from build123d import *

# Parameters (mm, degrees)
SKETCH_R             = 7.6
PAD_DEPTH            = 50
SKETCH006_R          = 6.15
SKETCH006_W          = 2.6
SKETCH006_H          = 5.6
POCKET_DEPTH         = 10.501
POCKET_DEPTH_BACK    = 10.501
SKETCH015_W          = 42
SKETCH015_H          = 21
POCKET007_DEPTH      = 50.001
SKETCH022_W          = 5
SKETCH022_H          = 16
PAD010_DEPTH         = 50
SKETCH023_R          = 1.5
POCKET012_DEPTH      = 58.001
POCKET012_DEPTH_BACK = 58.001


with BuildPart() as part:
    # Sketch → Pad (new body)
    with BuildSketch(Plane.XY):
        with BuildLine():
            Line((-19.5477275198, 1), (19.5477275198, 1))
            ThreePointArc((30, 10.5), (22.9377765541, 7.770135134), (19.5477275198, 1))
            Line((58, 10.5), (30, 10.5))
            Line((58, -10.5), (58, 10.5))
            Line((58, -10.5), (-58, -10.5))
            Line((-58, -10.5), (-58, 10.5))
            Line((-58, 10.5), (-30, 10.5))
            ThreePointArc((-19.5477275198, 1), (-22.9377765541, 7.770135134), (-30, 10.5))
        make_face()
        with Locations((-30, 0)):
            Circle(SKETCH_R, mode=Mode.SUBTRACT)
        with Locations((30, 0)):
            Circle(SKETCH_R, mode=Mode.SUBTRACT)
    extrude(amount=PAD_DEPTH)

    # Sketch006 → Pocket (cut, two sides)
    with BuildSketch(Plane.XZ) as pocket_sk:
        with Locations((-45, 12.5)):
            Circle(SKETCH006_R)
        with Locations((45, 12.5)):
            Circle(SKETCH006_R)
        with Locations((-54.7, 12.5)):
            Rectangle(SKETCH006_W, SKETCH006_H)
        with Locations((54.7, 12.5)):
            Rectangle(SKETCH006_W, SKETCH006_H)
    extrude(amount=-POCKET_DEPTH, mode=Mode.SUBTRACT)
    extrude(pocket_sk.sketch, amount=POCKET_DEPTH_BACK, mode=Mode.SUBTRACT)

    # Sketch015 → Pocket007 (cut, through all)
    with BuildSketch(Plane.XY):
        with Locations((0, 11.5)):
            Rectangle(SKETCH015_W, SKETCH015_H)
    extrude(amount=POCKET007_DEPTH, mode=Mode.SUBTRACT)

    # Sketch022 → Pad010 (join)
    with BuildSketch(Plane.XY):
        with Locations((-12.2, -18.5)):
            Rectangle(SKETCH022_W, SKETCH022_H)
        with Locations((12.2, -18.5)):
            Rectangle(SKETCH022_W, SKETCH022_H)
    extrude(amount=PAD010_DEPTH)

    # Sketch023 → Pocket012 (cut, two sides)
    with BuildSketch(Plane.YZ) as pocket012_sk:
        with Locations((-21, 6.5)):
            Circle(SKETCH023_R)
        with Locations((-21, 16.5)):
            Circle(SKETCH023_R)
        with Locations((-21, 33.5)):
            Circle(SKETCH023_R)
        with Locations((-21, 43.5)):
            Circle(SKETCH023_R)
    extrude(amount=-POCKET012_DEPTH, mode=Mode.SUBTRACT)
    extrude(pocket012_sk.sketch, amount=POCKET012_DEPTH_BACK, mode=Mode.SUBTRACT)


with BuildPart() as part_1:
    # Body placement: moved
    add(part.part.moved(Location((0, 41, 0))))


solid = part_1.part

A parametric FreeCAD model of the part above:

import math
import FreeCAD as App
import Part
import Sketcher

V = App.Vector


def add_polygon(sketch, points):
    """Adds a closed chain of lines whose ends are joined by coincident constraints."""
    first, n = sketch.GeometryCount, len(points)
    for a, b in zip(points, points[1:] + points[:1]):
        sketch.addGeometry(Part.LineSegment(App.Vector(*a, 0), App.Vector(*b, 0)), False)
    for i in range(n):
        sketch.addConstraint(Sketcher.Constraint("Coincident", first + i, 2, first + (i + 1) % n, 1))

doc = App.newDocument("Part")
params = doc.addObject("Spreadsheet::Sheet", "Params")
for row, (alias, value) in enumerate([
    ("sketch1_diameter", "15.2 mm"),
    ("sketch1_radius", "10.5 mm"),
    ("sketch1_width", "28 mm"),
    ("sketch1_width2", "116 mm"),
    ("pad1_length", "50 mm"),
    ("sketch2_diameter", "12.3 mm"),
    ("sketch2_width", "2.6 mm"),
    ("sketch2_height", "5.6 mm"),
    ("sketch3_width", "42 mm"),
    ("sketch3_height", "21 mm"),
    ("sketch4_width", "5 mm"),
    ("sketch4_height", "16 mm"),
    ("pad2_length", "50 mm"),
    ("sketch5_diameter", "3 mm"),
], start=1):
    params.set(f"A{row}", alias)
    params.set(f"B{row}", "=" + value)
    params.setAlias(f"B{row}", alias)

body = doc.addObject("PartDesign::Body", "Body")

# Sketch on XY plane
sketch1 = body.newObject("Sketcher::SketchObject", "Sketch")
sketch1.AttachmentSupport = (doc.getObject("XY_Plane"), [""])
sketch1.MapMode = "FlatFace"
sketch1.addGeometry(Part.LineSegment(V(20, 1, 0), V(-20, 1, 0)), False)
sketch1.addGeometry(Part.ArcOfCircle(Part.Circle(V(-30, 0, 0), V(0, 0, 1), 10), math.radians(5), math.radians(90)), False)
sketch1.addGeometry(Part.LineSegment(V(-30, 10, 0), V(-58, 10, 0)), False)
sketch1.addGeometry(Part.LineSegment(V(-58, 10, 0), V(-58, -10, 0)), False)
sketch1.addGeometry(Part.LineSegment(V(-58, -10, 0), V(58, -10, 0)), False)
sketch1.addGeometry(Part.LineSegment(V(58, -10, 0), V(58, 10, 0)), False)
sketch1.addGeometry(Part.LineSegment(V(58, 10, 0), V(30, 10, 0)), False)
sketch1.addGeometry(Part.ArcOfCircle(Part.Circle(V(30, 0, 0), V(0, 0, 1), 10), math.radians(90), math.radians(175)), False)
sketch1.addGeometry(Part.Circle(V(30, 0, 0), V(0, 0, 1), 8), False)
sketch1.addGeometry(Part.Circle(V(-30, 0, 0), V(0, 0, 1), 8), False)
sketch1.addConstraint(Sketcher.Constraint("Coincident", 0, 2, 1, 1))
sketch1.addConstraint(Sketcher.Constraint("Tangent", 1, 2, 2, 1))
sketch1.addConstraint(Sketcher.Constraint("Coincident", 2, 2, 3, 1))
sketch1.addConstraint(Sketcher.Constraint("Coincident", 3, 2, 4, 1))
sketch1.addConstraint(Sketcher.Constraint("Coincident", 4, 2, 5, 1))
sketch1.addConstraint(Sketcher.Constraint("Coincident", 5, 2, 6, 1))
sketch1.addConstraint(Sketcher.Constraint("Tangent", 6, 2, 7, 1))
sketch1.addConstraint(Sketcher.Constraint("Coincident", 7, 2, 0, 1))
sketch1.addConstraint(Sketcher.Constraint("Horizontal", 0))
sketch1.addConstraint(Sketcher.Constraint("Horizontal", 2))
sketch1.addConstraint(Sketcher.Constraint("Vertical", 3))
sketch1.addConstraint(Sketcher.Constraint("Horizontal", 4))
sketch1.addConstraint(Sketcher.Constraint("Vertical", 5))
sketch1.addConstraint(Sketcher.Constraint("Horizontal", 6))
sketch1.addConstraint(Sketcher.Constraint("Coincident", 8, 3, 7, 3))
sketch1.addConstraint(Sketcher.Constraint("Coincident", 9, 3, 1, 3))
sketch1.addConstraint(Sketcher.Constraint("Equal", 1, 7))
sketch1.addConstraint(Sketcher.Constraint("Equal", 8, 9))
sketch1.addConstraint(Sketcher.Constraint("Symmetric", 1, 3, 7, 3, -1, 1))
sketch1.addConstraint(Sketcher.Constraint("Symmetric", 2, 2, 4, 2, -1, 1))
sketch1.addConstraint(Sketcher.Constraint("PointOnObject", 1, 3, -1))
sketch1.addConstraint(Sketcher.Constraint("Diameter", 8, 15.2))
sketch1.addConstraint(Sketcher.Constraint("Radius", 1, 10.5))
sketch1.addConstraint(Sketcher.Constraint("DistanceX", 2, 2, 2, 1, 28.0))
sketch1.addConstraint(Sketcher.Constraint("DistanceX", 4, 1, 4, 2, 116.0))
sketch1.addConstraint(Sketcher.Constraint("DistanceY", -1, 1, 0, 2, 1.0))
sketch1.setExpression("Constraints[21]", "Params.sketch1_diameter")
sketch1.setExpression("Constraints[22]", "Params.sketch1_radius")
sketch1.setExpression("Constraints[23]", "Params.sketch1_width")
sketch1.setExpression("Constraints[24]", "Params.sketch1_width2")
pad1 = body.newObject("PartDesign::Pad", "Pad")
pad1.Profile = sketch1
pad1.setExpression("Length", "Params.pad1_length")

# Sketch on XZ plane
sketch2 = body.newObject("Sketcher::SketchObject", "Sketch001")
sketch2.AttachmentSupport = (doc.getObject("XZ_Plane"), [""])
sketch2.MapMode = "FlatFace"
sketch2.addGeometry(Part.Circle(V(-45, 12.5, 0), V(0, 0, 1), 6.2), False)  # 0
sketch2.addGeometry(Part.Circle(V(45, 12.5, 0), V(0, 0, 1), 6.2), False)  # 1
add_polygon(sketch2, [(-56, 15.3), (-56, 9.7), (-53.4, 9.7), (-53.4, 15.3)])  # lines 2-5
add_polygon(sketch2, [(53.4, 15.3), (53.4, 9.7), (56, 9.7), (56, 15.3)])  # lines 6-9
sketch2.addConstraint(Sketcher.Constraint("Vertical", 2))
sketch2.addConstraint(Sketcher.Constraint("Horizontal", 3))
sketch2.addConstraint(Sketcher.Constraint("Vertical", 4))
sketch2.addConstraint(Sketcher.Constraint("Horizontal", 5))
sketch2.addConstraint(Sketcher.Constraint("Vertical", 6))
sketch2.addConstraint(Sketcher.Constraint("Horizontal", 7))
sketch2.addConstraint(Sketcher.Constraint("Vertical", 8))
sketch2.addConstraint(Sketcher.Constraint("Horizontal", 9))
sketch2.addConstraint(Sketcher.Constraint("Equal", 0, 1))
sketch2.addConstraint(Sketcher.Constraint("Symmetric", 0, 3, 1, 3, -2))
sketch2.addConstraint(Sketcher.Constraint("Symmetric", 3, 2, 6, 2, -2))
sketch2.addConstraint(Sketcher.Constraint("Symmetric", 5, 2, 8, 2, -2))
sketch2.addConstraint(Sketcher.Constraint("Diameter", 0, 12.3))
sketch2.addConstraint(Sketcher.Constraint("DistanceX", 3, 1, 3, 2, 2.6))
sketch2.addConstraint(Sketcher.Constraint("DistanceY", 2, 2, 2, 1, 5.6))
sketch2.addConstraint(Sketcher.Constraint("DistanceX", 0, 3, -1, 1, 45.0))
sketch2.addConstraint(Sketcher.Constraint("DistanceX", 2, 2, -1, 1, 56.0))
sketch2.addConstraint(Sketcher.Constraint("DistanceY", -1, 1, 0, 3, 12.5))
sketch2.addConstraint(Sketcher.Constraint("DistanceY", -1, 1, 2, 2, 9.7))
sketch2.setExpression("Constraints[20]", "Params.sketch2_diameter")
sketch2.setExpression("Constraints[21]", "Params.sketch2_width")
sketch2.setExpression("Constraints[22]", "Params.sketch2_height")
pocket1 = body.newObject("PartDesign::Pocket", "Pocket")
pocket1.Profile = sketch2
pocket1.Type = "ThroughAll"
pocket1.Midplane = True

# Sketch on XY plane
sketch3 = body.newObject("Sketcher::SketchObject", "Sketch002")
sketch3.AttachmentSupport = (doc.getObject("XY_Plane"), [""])
sketch3.MapMode = "FlatFace"
add_polygon(sketch3, [(-21, 22), (-21, 1), (21, 1), (21, 22)])  # lines 0-3
sketch3.addConstraint(Sketcher.Constraint("Vertical", 0))
sketch3.addConstraint(Sketcher.Constraint("Horizontal", 1))
sketch3.addConstraint(Sketcher.Constraint("Vertical", 2))
sketch3.addConstraint(Sketcher.Constraint("Horizontal", 3))
sketch3.addConstraint(Sketcher.Constraint("DistanceX", 1, 1, 1, 2, 42.0))
sketch3.addConstraint(Sketcher.Constraint("DistanceY", 0, 2, 0, 1, 21.0))
sketch3.addConstraint(Sketcher.Constraint("DistanceX", 0, 2, -1, 1, 21.0))
sketch3.addConstraint(Sketcher.Constraint("DistanceY", -1, 1, 0, 2, 1.0))
sketch3.setExpression("Constraints[8]", "Params.sketch3_width")
sketch3.setExpression("Constraints[9]", "Params.sketch3_height")
pocket2 = body.newObject("PartDesign::Pocket", "Pocket001")
pocket2.Profile = sketch3
pocket2.Type = "ThroughAll"
pocket2.Reversed = True

# Sketch on XY plane
sketch4 = body.newObject("Sketcher::SketchObject", "Sketch003")
sketch4.AttachmentSupport = (doc.getObject("XY_Plane"), [""])
sketch4.MapMode = "FlatFace"
add_polygon(sketch4, [(-15, -10), (-15, -26), (-10, -26), (-10, -10)])  # lines 0-3
add_polygon(sketch4, [(10, -10), (10, -26), (15, -26), (15, -10)])  # lines 4-7
sketch4.addConstraint(Sketcher.Constraint("Vertical", 0))
sketch4.addConstraint(Sketcher.Constraint("Horizontal", 1))
sketch4.addConstraint(Sketcher.Constraint("Vertical", 2))
sketch4.addConstraint(Sketcher.Constraint("Horizontal", 3))
sketch4.addConstraint(Sketcher.Constraint("Vertical", 4))
sketch4.addConstraint(Sketcher.Constraint("Horizontal", 5))
sketch4.addConstraint(Sketcher.Constraint("Vertical", 6))
sketch4.addConstraint(Sketcher.Constraint("Horizontal", 7))
sketch4.addConstraint(Sketcher.Constraint("Symmetric", 1, 2, 4, 2, -2))
sketch4.addConstraint(Sketcher.Constraint("Symmetric", 3, 2, 6, 2, -2))
sketch4.addConstraint(Sketcher.Constraint("DistanceX", 1, 1, 1, 2, 5.0))
sketch4.addConstraint(Sketcher.Constraint("DistanceY", 0, 2, 0, 1, 16.0))
sketch4.addConstraint(Sketcher.Constraint("DistanceX", 0, 2, -1, 1, 14.7))
sketch4.addConstraint(Sketcher.Constraint("DistanceY", 0, 2, -1, 1, 26.5))
sketch4.setExpression("Constraints[18]", "Params.sketch4_width")
sketch4.setExpression("Constraints[19]", "Params.sketch4_height")
pad2 = body.newObject("PartDesign::Pad", "Pad001")
pad2.Profile = sketch4
pad2.setExpression("Length", "Params.pad2_length")

# Sketch on YZ plane
sketch5 = body.newObject("Sketcher::SketchObject", "Sketch004")
sketch5.AttachmentSupport = (doc.getObject("YZ_Plane"), [""])
sketch5.MapMode = "FlatFace"
sketch5.addGeometry(Part.Circle(V(-21, 6.5, 0), V(0, 0, 1), 1.5), False)
sketch5.addGeometry(Part.Circle(V(-21, 16.5, 0), V(0, 0, 1), 1.5), False)
sketch5.addGeometry(Part.Circle(V(-21, 33.5, 0), V(0, 0, 1), 1.5), False)
sketch5.addGeometry(Part.Circle(V(-21, 43.5, 0), V(0, 0, 1), 1.5), False)
sketch5.addConstraint(Sketcher.Constraint("Equal", 0, 1))
sketch5.addConstraint(Sketcher.Constraint("Equal", 1, 2))
sketch5.addConstraint(Sketcher.Constraint("Equal", 2, 3))
sketch5.addConstraint(Sketcher.Constraint("Vertical", 0, 3, 1, 3))
sketch5.addConstraint(Sketcher.Constraint("Vertical", 1, 3, 2, 3))
sketch5.addConstraint(Sketcher.Constraint("Vertical", 2, 3, 3, 3))
sketch5.addConstraint(Sketcher.Constraint("Diameter", 0, 3.0))
sketch5.addConstraint(Sketcher.Constraint("DistanceX", 0, 3, -1, 1, 21.0))
sketch5.addConstraint(Sketcher.Constraint("DistanceY", 0, 3, 1, 3, 10.0))
sketch5.addConstraint(Sketcher.Constraint("DistanceY", 1, 3, 2, 3, 17.0))
sketch5.addConstraint(Sketcher.Constraint("DistanceY", 2, 3, 3, 3, 10.0))
sketch5.addConstraint(Sketcher.Constraint("DistanceY", -1, 1, 0, 3, 6.5))
sketch5.setExpression("Constraints[6]", "Params.sketch5_diameter")
pocket3 = body.newObject("PartDesign::Pocket", "Pocket002")
pocket3.Profile = sketch5
pocket3.Type = "ThroughAll"
pocket3.Midplane = True
body2 = doc.addObject("PartDesign::Body", "Body001")
doc.recompute()

body.Placement = App.Placement(V(0, 41, 0), App.Rotation(V(0, 0, 1), 0))
boolean = body2.newObject("PartDesign::Boolean", "Boolean")
boolean.Type = "Fuse"
boolean.addObjects([body])

doc.recompute()
